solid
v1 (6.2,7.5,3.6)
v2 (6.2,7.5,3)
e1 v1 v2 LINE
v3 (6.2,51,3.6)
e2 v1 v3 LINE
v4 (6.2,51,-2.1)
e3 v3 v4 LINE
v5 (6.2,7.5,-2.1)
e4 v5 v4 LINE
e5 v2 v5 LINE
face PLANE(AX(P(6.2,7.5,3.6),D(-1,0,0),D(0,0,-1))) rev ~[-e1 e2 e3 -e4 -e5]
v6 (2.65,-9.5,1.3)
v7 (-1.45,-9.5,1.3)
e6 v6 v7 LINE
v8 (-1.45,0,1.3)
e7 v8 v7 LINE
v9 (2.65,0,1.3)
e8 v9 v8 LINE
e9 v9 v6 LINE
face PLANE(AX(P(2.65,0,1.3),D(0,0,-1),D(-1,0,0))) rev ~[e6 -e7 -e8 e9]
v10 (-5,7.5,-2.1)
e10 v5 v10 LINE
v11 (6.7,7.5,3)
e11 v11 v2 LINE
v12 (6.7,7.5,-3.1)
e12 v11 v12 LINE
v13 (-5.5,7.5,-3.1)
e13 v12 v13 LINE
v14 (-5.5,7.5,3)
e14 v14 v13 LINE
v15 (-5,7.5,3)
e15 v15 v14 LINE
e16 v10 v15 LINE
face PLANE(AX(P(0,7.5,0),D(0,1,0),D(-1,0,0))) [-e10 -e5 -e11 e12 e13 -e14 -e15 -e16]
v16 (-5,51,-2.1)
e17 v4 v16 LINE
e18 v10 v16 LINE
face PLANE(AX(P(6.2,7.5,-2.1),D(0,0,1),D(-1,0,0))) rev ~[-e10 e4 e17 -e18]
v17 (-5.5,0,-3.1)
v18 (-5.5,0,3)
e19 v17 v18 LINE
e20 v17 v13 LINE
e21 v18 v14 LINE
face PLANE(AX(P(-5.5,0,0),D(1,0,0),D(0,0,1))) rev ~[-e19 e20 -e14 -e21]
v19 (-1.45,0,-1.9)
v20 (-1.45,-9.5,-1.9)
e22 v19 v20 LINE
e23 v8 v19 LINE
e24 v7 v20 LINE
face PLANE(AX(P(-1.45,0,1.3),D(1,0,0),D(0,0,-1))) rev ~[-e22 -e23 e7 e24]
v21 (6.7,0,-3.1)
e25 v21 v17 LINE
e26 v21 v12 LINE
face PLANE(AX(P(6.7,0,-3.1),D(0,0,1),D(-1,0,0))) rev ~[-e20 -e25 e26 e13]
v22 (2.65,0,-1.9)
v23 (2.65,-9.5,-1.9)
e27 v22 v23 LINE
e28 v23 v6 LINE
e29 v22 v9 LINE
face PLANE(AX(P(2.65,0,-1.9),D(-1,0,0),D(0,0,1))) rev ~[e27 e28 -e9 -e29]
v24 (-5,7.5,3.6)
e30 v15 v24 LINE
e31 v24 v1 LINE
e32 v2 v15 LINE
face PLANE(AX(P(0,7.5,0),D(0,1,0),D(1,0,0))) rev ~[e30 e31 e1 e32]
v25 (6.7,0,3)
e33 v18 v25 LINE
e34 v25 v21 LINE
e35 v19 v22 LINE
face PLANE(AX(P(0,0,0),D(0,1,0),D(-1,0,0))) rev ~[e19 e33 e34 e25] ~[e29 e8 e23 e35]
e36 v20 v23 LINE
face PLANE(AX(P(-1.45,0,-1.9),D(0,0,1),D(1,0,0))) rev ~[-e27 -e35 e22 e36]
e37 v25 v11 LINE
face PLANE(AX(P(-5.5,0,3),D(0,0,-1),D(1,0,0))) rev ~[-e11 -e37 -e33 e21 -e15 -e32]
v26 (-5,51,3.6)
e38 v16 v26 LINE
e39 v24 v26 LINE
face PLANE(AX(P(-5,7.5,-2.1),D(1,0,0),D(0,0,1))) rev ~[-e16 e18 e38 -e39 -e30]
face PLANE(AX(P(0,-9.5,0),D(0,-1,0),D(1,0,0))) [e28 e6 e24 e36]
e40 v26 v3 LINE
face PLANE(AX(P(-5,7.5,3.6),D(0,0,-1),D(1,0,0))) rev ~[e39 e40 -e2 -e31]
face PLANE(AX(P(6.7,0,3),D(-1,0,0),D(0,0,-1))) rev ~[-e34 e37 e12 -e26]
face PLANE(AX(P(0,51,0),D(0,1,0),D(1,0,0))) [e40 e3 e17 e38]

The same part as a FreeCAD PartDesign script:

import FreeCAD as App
import Part
import Sketcher
from FreeCAD import Vector
Q = App.Units.Quantity


def add_polygon(sketch, points):
    """Adds a closed chain of lines whose ends are joined by coincident constraints."""
    first, n = sketch.GeometryCount, len(points)
    for a, b in zip(points, points[1:] + points[:1]):
        sketch.addGeometry(Part.LineSegment(App.Vector(*a, 0), App.Vector(*b, 0)), False)
    for i in range(n):
        sketch.addConstraint(Sketcher.Constraint("Coincident", first + i, 2, first + (i + 1) % n, 1))

doc = App.newDocument("Part")
body = doc.addObject("PartDesign::Body", "Body")

# Sketch on XZ plane
sketch1 = doc.addObject("Sketcher::SketchObject", "Sketch")
body.addObject(sketch1)
sketch1.AttachmentSupport = (doc.XZ_Plane, [""])
sketch1.MapMode = "FlatFace"
add_polygon(sketch1, [(-6, 3), (7, 3), (7, -3), (-6, -3)])  # lines 0-3
sketch1.addConstraint([
    Sketcher.Constraint("Horizontal", 0),
    Sketcher.Constraint("Vertical", 1),
    Sketcher.Constraint("Horizontal", 2),
    Sketcher.Constraint("Vertical", 3),
    Sketcher.Constraint("DistanceX", 0, 1, 0, 2, Q("12.2 mm")),
    Sketcher.Constraint("DistanceY", 1, 2, 1, 1, Q("6.1 mm")),
    Sketcher.Constraint("DistanceY", -1, 1, 0, 2, Q("3 mm")),
    Sketcher.Constraint("DistanceX", 2, 2, -1, 1, Q("5.5 mm")),
])
pad1 = doc.addObject("PartDesign::Pad", "Pad")
body.addObject(pad1)
pad1.Profile = sketch1
pad1.Length = 7.5
pad1.Reversed = True

# Sketch on XZ plane
sketch2 = doc.addObject("Sketcher::SketchObject", "Sketch001")
body.addObject(sketch2)
sketch2.AttachmentSupport = (doc.XZ_Plane, [""])
sketch2.MapMode = "FlatFace"
sketch2.AttachmentOffset = App.Placement(Vector(0, 0, -7.5), App.Rotation())
add_polygon(sketch2, [(6, 4), (6, -2), (-5, -2), (-5, 4)])  # lines 0-3
sketch2.addConstraint([
    Sketcher.Constraint("Vertical", 0),
    Sketcher.Constraint("Horizontal", 1),
    Sketcher.Constraint("Vertical", 2),
    Sketcher.Constraint("Horizontal", 3),
    Sketcher.Constraint("DistanceX", 1, 2, 1, 1, Q("11.2 mm")),
    Sketcher.Constraint("DistanceY", 0, 2, 0, 1, Q("5.7 mm")),
    Sketcher.Constraint("DistanceX", 1, 2, -1, 1, Q("5 mm")),
    Sketcher.Constraint("DistanceY", 0, 2, -1, 1, Q("2.1 mm")),
])
pad2 = doc.addObject("PartDesign::Pad", "Pad001")
body.addObject(pad2)
pad2.Profile = sketch2
pad2.Length = 43.5
pad2.Reversed = True

# Sketch on XZ plane
sketch3 = doc.addObject("Sketcher::SketchObject", "Sketch002")
body.addObject(sketch3)
sketch3.AttachmentSupport = (doc.XZ_Plane, [""])
sketch3.MapMode = "FlatFace"
add_polygon(sketch3, [(-1.4, 1.3), (-1.4, -1.9), (2.6, -1.9), (2.6, 1.3)])  # lines 0-3
sketch3.addConstraint([
    Sketcher.Constraint("Vertical", 0),
    Sketcher.Constraint("Horizontal", 1),
    Sketcher.Constraint("Vertical", 2),
    Sketcher.Constraint("Horizontal", 3),
    Sketcher.Constraint("DistanceX", 1, 1, 1, 2, Q("4.1 mm")),
    Sketcher.Constraint("DistanceY", 0, 2, 0, 1, Q("3.2 mm")),
    Sketcher.Constraint("DistanceY", 0, 2, -1, 1, Q("1.9 mm")),
    Sketcher.Constraint("DistanceX", 0, 2, -1, 1, Q("1.45 mm")),
])
pad3 = doc.addObject("PartDesign::Pad", "Pad002")
body.addObject(pad3)
pad3.Profile = sketch3
pad3.Length = 9.5

doc.recompute()
